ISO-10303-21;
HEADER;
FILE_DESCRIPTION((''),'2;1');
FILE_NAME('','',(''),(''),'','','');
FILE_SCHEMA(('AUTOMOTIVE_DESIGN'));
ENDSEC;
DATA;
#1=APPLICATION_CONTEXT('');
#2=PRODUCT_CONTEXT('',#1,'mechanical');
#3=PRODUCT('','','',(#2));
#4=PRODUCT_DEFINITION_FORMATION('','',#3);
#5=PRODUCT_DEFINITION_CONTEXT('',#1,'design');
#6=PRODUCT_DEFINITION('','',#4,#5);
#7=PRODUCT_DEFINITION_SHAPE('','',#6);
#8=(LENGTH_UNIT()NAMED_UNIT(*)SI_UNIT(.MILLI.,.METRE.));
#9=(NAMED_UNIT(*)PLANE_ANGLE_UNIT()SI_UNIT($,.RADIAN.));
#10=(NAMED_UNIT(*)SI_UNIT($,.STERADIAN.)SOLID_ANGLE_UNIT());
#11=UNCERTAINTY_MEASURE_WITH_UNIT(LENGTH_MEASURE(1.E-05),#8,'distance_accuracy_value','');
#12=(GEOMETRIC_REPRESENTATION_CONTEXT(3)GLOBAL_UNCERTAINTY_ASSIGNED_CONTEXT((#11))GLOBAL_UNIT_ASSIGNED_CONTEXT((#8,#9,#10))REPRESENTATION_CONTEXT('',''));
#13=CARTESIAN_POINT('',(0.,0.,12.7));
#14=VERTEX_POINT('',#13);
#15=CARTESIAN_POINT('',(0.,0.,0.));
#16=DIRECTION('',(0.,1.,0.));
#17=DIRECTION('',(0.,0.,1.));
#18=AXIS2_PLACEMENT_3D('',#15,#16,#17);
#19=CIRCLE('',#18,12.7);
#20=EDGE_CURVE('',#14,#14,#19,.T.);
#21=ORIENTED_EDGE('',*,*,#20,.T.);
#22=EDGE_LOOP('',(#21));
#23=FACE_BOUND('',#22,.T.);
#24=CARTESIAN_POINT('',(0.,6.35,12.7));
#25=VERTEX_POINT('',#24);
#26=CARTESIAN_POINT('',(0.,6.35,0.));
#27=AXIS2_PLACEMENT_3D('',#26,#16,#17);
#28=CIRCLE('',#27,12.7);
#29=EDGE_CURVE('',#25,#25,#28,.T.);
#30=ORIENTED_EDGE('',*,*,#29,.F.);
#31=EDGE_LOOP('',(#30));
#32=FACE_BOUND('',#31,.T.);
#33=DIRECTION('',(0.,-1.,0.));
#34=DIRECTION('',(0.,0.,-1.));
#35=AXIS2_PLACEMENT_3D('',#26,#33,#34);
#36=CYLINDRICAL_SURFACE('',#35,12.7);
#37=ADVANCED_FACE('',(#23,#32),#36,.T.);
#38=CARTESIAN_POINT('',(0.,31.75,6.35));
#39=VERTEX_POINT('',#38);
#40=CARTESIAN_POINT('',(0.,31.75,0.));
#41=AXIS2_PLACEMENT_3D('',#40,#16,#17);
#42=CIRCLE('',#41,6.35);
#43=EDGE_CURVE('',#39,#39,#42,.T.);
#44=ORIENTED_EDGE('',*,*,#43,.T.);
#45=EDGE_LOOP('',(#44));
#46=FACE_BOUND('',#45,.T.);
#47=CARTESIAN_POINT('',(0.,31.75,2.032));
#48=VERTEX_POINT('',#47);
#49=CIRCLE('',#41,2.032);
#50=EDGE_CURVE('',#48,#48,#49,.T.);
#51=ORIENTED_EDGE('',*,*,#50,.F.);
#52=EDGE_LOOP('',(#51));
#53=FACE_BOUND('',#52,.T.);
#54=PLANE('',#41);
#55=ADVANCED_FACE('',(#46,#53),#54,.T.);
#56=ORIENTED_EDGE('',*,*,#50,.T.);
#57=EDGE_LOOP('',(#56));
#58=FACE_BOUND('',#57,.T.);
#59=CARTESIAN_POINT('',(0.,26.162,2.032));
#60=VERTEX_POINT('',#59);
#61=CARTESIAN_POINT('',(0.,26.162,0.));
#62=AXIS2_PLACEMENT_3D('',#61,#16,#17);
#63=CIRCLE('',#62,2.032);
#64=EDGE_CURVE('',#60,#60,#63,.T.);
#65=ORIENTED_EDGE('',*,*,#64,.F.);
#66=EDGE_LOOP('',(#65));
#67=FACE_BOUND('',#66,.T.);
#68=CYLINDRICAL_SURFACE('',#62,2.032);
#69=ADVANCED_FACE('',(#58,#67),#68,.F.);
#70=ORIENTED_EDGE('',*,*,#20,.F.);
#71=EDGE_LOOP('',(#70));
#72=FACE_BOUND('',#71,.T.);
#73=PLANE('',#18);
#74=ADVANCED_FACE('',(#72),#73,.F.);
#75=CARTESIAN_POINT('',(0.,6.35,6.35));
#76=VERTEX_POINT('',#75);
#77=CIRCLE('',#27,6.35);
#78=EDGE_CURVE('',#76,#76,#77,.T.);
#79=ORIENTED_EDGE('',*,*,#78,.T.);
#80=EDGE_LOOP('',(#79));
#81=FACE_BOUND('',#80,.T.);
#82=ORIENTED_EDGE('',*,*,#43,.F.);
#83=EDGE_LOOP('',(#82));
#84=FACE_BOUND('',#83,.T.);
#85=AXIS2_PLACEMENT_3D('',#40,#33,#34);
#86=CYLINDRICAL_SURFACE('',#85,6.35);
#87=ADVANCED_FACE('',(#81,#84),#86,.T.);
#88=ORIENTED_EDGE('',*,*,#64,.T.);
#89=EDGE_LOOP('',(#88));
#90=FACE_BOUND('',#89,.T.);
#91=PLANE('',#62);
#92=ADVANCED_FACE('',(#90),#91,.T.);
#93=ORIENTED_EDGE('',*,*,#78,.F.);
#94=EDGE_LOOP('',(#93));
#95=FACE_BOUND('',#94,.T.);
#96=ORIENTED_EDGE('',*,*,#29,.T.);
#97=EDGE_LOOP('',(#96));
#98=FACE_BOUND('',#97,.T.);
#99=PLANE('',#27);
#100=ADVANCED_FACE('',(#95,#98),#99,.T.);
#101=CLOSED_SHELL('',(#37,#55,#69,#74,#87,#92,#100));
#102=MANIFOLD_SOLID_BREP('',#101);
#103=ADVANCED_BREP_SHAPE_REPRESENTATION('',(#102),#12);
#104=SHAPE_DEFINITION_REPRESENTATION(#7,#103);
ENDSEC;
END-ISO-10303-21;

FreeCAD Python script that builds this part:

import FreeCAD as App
import Part
import Sketcher
Q = App.Units.Quantity

doc = App.newDocument("Part")
body = doc.addObject("PartDesign::Body", "Body")

# Sketch on XZ plane
sketch1 = body.newObject("Sketcher::SketchObject", "Sketch")
sketch1.AttachmentSupport = (doc.getObject("XZ_Plane"), [""])
sketch1.MapMode = "FlatFace"
sketch1.addGeometry(Part.Circle(App.Vector(0, 0, 0), App.Vector(0, 0, 1), 12.7), False)
sketch1.addConstraint(Sketcher.Constraint("Coincident", 0, 3, -1, 1))
sketch1.addConstraint(Sketcher.Constraint("Diameter", 0, Q("1 in")))
pad1 = body.newObject("PartDesign::Pad", "Pad")
pad1.Profile = sketch1
pad1.Length = Q("0.25 in")
pad1.Reversed = True

# Sketch on XZ plane
sketch2 = body.newObject("Sketcher::SketchObject", "Sketch001")
sketch2.AttachmentSupport = (doc.getObject("XZ_Plane"), [""])
sketch2.MapMode = "FlatFace"
sketch2.AttachmentOffset = App.Placement(App.Vector(0, 0, -0.25 * 25.4), App.Rotation())
sketch2.addGeometry(Part.Circle(App.Vector(0, 0, 0), App.Vector(0, 0, 1), 6.35), False)
sketch2.addConstraint(Sketcher.Constraint("Coincident", 0, 3, -1, 1))
sketch2.addConstraint(Sketcher.Constraint("Diameter", 0, Q("0.5 in")))
pad2 = body.newObject("PartDesign::Pad", "Pad001")
pad2.Profile = sketch2
pad2.Length = Q("1 in")
pad2.Reversed = True

# Sketch on XZ plane
sketch3 = body.newObject("Sketcher::SketchObject", "Sketch002")
sketch3.AttachmentSupport = (doc.getObject("XZ_Plane"), [""])
sketch3.MapMode = "FlatFace"
sketch3.AttachmentOffset = App.Placement(App.Vector(0, 0, -1.25 * 25.4), App.Rotation())
sketch3.addGeometry(Part.Circle(App.Vector(0, 0, 0), App.Vector(0, 0, 1), 2.032), False)
sketch3.addConstraint(Sketcher.Constraint("Coincident", 0, 3, -1, 1))
sketch3.addConstraint(Sketcher.Constraint("Diameter", 0, Q("0.16 in")))
pocket1 = body.newObject("PartDesign::Pocket", "Pocket")
pocket1.Profile = sketch3
pocket1.Length = Q("0.22 in")
pocket1.Reversed = True

doc.recompute()
